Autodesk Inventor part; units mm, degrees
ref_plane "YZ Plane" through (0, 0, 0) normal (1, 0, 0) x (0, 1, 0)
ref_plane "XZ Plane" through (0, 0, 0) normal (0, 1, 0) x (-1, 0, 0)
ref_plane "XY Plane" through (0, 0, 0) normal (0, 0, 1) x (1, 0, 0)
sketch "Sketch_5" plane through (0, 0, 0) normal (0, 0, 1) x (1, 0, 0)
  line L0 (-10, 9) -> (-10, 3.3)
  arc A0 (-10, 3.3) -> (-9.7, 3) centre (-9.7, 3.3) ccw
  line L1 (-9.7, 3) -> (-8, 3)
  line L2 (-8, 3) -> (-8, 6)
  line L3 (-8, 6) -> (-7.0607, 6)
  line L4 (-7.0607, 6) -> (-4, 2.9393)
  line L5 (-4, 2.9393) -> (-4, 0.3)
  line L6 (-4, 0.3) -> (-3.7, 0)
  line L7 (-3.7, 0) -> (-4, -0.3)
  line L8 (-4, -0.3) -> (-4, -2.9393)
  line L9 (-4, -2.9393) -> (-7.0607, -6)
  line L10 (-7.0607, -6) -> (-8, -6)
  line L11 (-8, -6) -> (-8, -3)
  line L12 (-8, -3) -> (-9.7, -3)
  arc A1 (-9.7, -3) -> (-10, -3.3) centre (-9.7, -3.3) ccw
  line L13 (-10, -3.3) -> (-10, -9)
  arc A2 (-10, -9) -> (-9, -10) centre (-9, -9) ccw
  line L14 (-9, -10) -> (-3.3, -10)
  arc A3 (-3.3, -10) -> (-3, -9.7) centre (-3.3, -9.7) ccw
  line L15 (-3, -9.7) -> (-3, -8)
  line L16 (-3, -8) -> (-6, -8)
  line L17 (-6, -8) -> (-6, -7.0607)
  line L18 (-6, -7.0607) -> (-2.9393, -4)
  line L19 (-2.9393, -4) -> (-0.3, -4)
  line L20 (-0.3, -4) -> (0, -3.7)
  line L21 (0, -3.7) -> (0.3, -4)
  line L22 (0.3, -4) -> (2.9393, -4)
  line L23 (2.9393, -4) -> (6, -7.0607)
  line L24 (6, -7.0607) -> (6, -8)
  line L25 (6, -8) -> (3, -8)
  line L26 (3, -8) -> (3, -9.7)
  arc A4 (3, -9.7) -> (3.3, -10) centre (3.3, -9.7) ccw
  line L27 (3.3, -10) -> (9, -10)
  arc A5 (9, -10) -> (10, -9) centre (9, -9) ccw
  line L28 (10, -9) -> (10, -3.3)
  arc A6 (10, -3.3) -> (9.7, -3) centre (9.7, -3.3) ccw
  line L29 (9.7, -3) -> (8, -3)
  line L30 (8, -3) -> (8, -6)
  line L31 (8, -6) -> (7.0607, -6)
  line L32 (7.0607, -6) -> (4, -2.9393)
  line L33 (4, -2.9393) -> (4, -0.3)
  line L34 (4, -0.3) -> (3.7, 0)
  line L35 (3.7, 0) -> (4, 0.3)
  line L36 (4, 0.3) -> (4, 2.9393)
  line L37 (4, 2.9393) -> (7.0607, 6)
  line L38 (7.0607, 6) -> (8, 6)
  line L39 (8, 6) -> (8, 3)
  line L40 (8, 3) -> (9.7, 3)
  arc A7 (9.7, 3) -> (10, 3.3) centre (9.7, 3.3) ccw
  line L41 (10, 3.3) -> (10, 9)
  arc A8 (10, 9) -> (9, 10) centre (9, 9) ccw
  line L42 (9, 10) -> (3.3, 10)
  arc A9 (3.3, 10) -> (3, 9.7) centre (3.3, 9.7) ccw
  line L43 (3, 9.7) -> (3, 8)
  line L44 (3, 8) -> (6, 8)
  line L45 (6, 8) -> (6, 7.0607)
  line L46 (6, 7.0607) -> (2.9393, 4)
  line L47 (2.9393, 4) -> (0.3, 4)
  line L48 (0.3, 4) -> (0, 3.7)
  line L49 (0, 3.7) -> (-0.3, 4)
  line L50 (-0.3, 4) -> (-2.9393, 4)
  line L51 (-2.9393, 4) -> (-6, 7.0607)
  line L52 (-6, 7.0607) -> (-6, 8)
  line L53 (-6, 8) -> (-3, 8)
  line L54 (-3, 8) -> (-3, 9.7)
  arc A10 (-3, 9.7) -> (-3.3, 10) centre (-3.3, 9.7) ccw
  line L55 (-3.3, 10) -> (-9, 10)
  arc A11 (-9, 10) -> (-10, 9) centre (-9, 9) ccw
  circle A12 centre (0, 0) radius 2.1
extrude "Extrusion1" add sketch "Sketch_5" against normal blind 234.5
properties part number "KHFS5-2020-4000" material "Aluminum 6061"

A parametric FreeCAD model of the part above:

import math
import FreeCAD as App
import Part
import Sketcher

doc = App.newDocument("Part")
body = doc.addObject("PartDesign::Body", "Body")

sketch1 = doc.addObject("Sketcher::SketchObject", "Sketch")
body.addObject(sketch1)
sketch1.AttachmentSupport = (doc.XY_Plane, [""])
sketch1.MapMode = "FlatFace"
sketch1.addGeometry([
    Part.ArcOfCircle(Part.Circle(App.Vector(-9, 9, 0), App.Vector(0, 0, 1), 1), math.radians(90), math.radians(180)),
    Part.LineSegment(App.Vector(-10, 9, 0), App.Vector(-10, 3.3, 0)),
    Part.ArcOfCircle(Part.Circle(App.Vector(-9.7, 3.3, 0), App.Vector(0, 0, 1), 0.3), math.radians(180), math.radians(270)),
    Part.LineSegment(App.Vector(-9.7, 3, 0), App.Vector(-8, 3, 0)),
    Part.LineSegment(App.Vector(-8, 3, 0), App.Vector(-8, 6, 0)),
    Part.LineSegment(App.Vector(-8, 6, 0), App.Vector(-7.06, 6, 0)),
    Part.LineSegment(App.Vector(-7.06, 6, 0), App.Vector(-4, 2.94, 0)),
    Part.LineSegment(App.Vector(-4, 2.94, 0), App.Vector(-4, 0.3, 0)),
    Part.LineSegment(App.Vector(-4, 0.3, 0), App.Vector(-3.7, 0, 0)),
    Part.LineSegment(App.Vector(-3.7, 0, 0), App.Vector(-4, -0.3, 0)),
    Part.LineSegment(App.Vector(-4, -0.3, 0), App.Vector(-4, -2.94, 0)),
    Part.LineSegment(App.Vector(-4, -2.94, 0), App.Vector(-7.06, -6, 0)),
    Part.LineSegment(App.Vector(-7.06, -6, 0), App.Vector(-8, -6, 0)),
    Part.LineSegment(App.Vector(-8, -6, 0), App.Vector(-8, -3, 0)),
    Part.LineSegment(App.Vector(-8, -3, 0), App.Vector(-9.7, -3, 0)),
    Part.ArcOfCircle(Part.Circle(App.Vector(-9.7, -3.3, 0), App.Vector(0, 0, 1), 0.3), math.radians(90), math.radians(180)),
    Part.LineSegment(App.Vector(-10, -3.3, 0), App.Vector(-10, -9, 0)),
    Part.ArcOfCircle(Part.Circle(App.Vector(-9, -9, 0), App.Vector(0, 0, 1), 1), math.radians(180), math.radians(270)),
    Part.LineSegment(App.Vector(-9, -10, 0), App.Vector(-3.3, -10, 0)),
    Part.ArcOfCircle(Part.Circle(App.Vector(-3.3, -9.7, 0), App.Vector(0, 0, 1), 0.3), math.radians(-90), math.radians(0)),
    Part.LineSegment(App.Vector(-3, -9.7, 0), App.Vector(-3, -8, 0)),
    Part.LineSegment(App.Vector(-3, -8, 0), App.Vector(-6, -8, 0)),
    Part.LineSegment(App.Vector(-6, -8, 0), App.Vector(-6, -7.06, 0)),
    Part.LineSegment(App.Vector(-6, -7.06, 0), App.Vector(-2.94, -4, 0)),
    Part.LineSegment(App.Vector(-2.94, -4, 0), App.Vector(-0.3, -4, 0)),
    Part.LineSegment(App.Vector(-0.3, -4, 0), App.Vector(0, -3.7, 0)),
    Part.LineSegment(App.Vector(0, -3.7, 0), App.Vector(0.3, -4, 0)),
    Part.LineSegment(App.Vector(0.3, -4, 0), App.Vector(2.94, -4, 0)),
    Part.LineSegment(App.Vector(2.94, -4, 0), App.Vector(6, -7.06, 0)),
    Part.LineSegment(App.Vector(6, -7.06, 0), App.Vector(6, -8, 0)),
    Part.LineSegment(App.Vector(6, -8, 0), App.Vector(3, -8, 0)),
    Part.LineSegment(App.Vector(3, -8, 0), App.Vector(3, -9.7, 0)),
    Part.ArcOfCircle(Part.Circle(App.Vector(3.3, -9.7, 0), App.Vector(0, 0, 1), 0.3), math.radians(180), math.radians(270)),
    Part.LineSegment(App.Vector(3.3, -10, 0), App.Vector(9, -10, 0)),
    Part.ArcOfCircle(Part.Circle(App.Vector(9, -9, 0), App.Vector(0, 0, 1), 1), math.radians(-90), math.radians(0)),
    Part.LineSegment(App.Vector(10, -9, 0), App.Vector(10, -3.3, 0)),
    Part.ArcOfCircle(Part.Circle(App.Vector(9.7, -3.3, 0), App.Vector(0, 0, 1), 0.3), math.radians(0), math.radians(90)),
    Part.LineSegment(App.Vector(9.7, -3, 0), App.Vector(8, -3, 0)),
    Part.LineSegment(App.Vector(8, -3, 0), App.Vector(8, -6, 0)),
    Part.LineSegment(App.Vector(8, -6, 0), App.Vector(7.06, -6, 0)),
    Part.LineSegment(App.Vector(7.06, -6, 0), App.Vector(4, -2.94, 0)),
    Part.LineSegment(App.Vector(4, -2.94, 0), App.Vector(4, -0.3, 0)),
    Part.LineSegment(App.Vector(4, -0.3, 0), App.Vector(3.7, 0, 0)),
    Part.LineSegment(App.Vector(3.7, 0, 0), App.Vector(4, 0.3, 0)),
    Part.LineSegment(App.Vector(4, 0.3, 0), App.Vector(4, 2.94, 0)),
    Part.LineSegment(App.Vector(4, 2.94, 0), App.Vector(7.06, 6, 0)),
    Part.LineSegment(App.Vector(7.06, 6, 0), App.Vector(8, 6, 0)),
    Part.LineSegment(App.Vector(8, 6, 0), App.Vector(8, 3, 0)),
    Part.LineSegment(App.Vector(8, 3, 0), App.Vector(9.7, 3, 0)),
    Part.ArcOfCircle(Part.Circle(App.Vector(9.7, 3.3, 0), App.Vector(0, 0, 1), 0.3), math.radians(-90), math.radians(0)),
    Part.LineSegment(App.Vector(10, 3.3, 0), App.Vector(10, 9, 0)),
    Part.ArcOfCircle(Part.Circle(App.Vector(9, 9, 0), App.Vector(0, 0, 1), 1), math.radians(0), math.radians(90)),
    Part.LineSegment(App.Vector(9, 10, 0), App.Vector(3.3, 10, 0)),
    Part.ArcOfCircle(Part.Circle(App.Vector(3.3, 9.7, 0), App.Vector(0, 0, 1), 0.3), math.radians(90), math.radians(180)),
    Part.LineSegment(App.Vector(3, 9.7, 0), App.Vector(3, 8, 0)),
    Part.LineSegment(App.Vector(3, 8, 0), App.Vector(6, 8, 0)),
    Part.LineSegment(App.Vector(6, 8, 0), App.Vector(6, 7.06, 0)),
    Part.LineSegment(App.Vector(6, 7.06, 0), App.Vector(2.94, 4, 0)),
    Part.LineSegment(App.Vector(2.94, 4, 0), App.Vector(0.3, 4, 0)),
    Part.LineSegment(App.Vector(0.3, 4, 0), App.Vector(0, 3.7, 0)),
    Part.LineSegment(App.Vector(0, 3.7, 0), App.Vector(-0.3, 4, 0)),
    Part.LineSegment(App.Vector(-0.3, 4, 0), App.Vector(-2.94, 4, 0)),
    Part.LineSegment(App.Vector(-2.94, 4, 0), App.Vector(-6, 7.06, 0)),
    Part.LineSegment(App.Vector(-6, 7.06, 0), App.Vector(-6, 8, 0)),
    Part.LineSegment(App.Vector(-6, 8, 0), App.Vector(-3, 8, 0)),
    Part.LineSegment(App.Vector(-3, 8, 0), App.Vector(-3, 9.7, 0)),
    Part.ArcOfCircle(Part.Circle(App.Vector(-3.3, 9.7, 0), App.Vector(0, 0, 1), 0.3), math.radians(0), math.radians(90)),
    Part.LineSegment(App.Vector(-3.3, 10, 0), App.Vector(-9, 10, 0)),
    Part.Circle(App.Vector(0, 0, 0), App.Vector(0, 0, 1), 2.1),
], False)
sketch1.addConstraint([
    Sketcher.Constraint("Tangent", 0, 2, 1, 1),
    Sketcher.Constraint("Tangent", 1, 2, 2, 1),
    Sketcher.Constraint("Tangent", 2, 2, 3, 1),
    Sketcher.Constraint("Coincident", 3, 2, 4, 1),
    Sketcher.Constraint("Coincident", 4, 2, 5, 1),
    Sketcher.Constraint("Coincident", 5, 2, 6, 1),
    Sketcher.Constraint("Coincident", 6, 2, 7, 1),
    Sketcher.Constraint("Coincident", 7, 2, 8, 1),
    Sketcher.Constraint("Coincident", 8, 2, 9, 1),
    Sketcher.Constraint("Coincident", 9, 2, 10, 1),
    Sketcher.Constraint("Coincident", 10, 2, 11, 1),
    Sketcher.Constraint("Coincident", 11, 2, 12, 1),
    Sketcher.Constraint("Coincident", 12, 2, 13, 1),
    Sketcher.Constraint("Coincident", 13, 2, 14, 1),
    Sketcher.Constraint("Tangent", 14, 2, 15, 1),
    Sketcher.Constraint("Tangent", 15, 2, 16, 1),
    Sketcher.Constraint("Tangent", 16, 2, 17, 1),
    Sketcher.Constraint("Tangent", 17, 2, 18, 1),
    Sketcher.Constraint("Tangent", 18, 2, 19, 1),
    Sketcher.Constraint("Tangent", 19, 2, 20, 1),
    Sketcher.Constraint("Coincident", 20, 2, 21, 1),
    Sketcher.Constraint("Coincident", 21, 2, 22, 1),
    Sketcher.Constraint("Coincident", 22, 2, 23, 1),
    Sketcher.Constraint("Coincident", 23, 2, 24, 1),
    Sketcher.Constraint("Coincident", 24, 2, 25, 1),
    Sketcher.Constraint("Coincident", 25, 2, 26, 1),
    Sketcher.Constraint("Coincident", 26, 2, 27, 1),
    Sketcher.Constraint("Coincident", 27, 2, 28, 1),
    Sketcher.Constraint("Coincident", 28, 2, 29, 1),
    Sketcher.Constraint("Coincident", 29, 2, 30, 1),
    Sketcher.Constraint("Coincident", 30, 2, 31, 1),
    Sketcher.Constraint("Tangent", 31, 2, 32, 1),
    Sketcher.Constraint("Tangent", 32, 2, 33, 1),
    Sketcher.Constraint("Tangent", 33, 2, 34, 1),
    Sketcher.Constraint("Tangent", 34, 2, 35, 1),
    Sketcher.Constraint("Tangent", 35, 2, 36, 1),
    Sketcher.Constraint("Tangent", 36, 2, 37, 1),
    Sketcher.Constraint("Coincident", 37, 2, 38, 1),
    Sketcher.Constraint("Coincident", 38, 2, 39, 1),
    Sketcher.Constraint("Coincident", 39, 2, 40, 1),
    Sketcher.Constraint("Coincident", 40, 2, 41, 1),
    Sketcher.Constraint("Coincident", 41, 2, 42, 1),
    Sketcher.Constraint("Coincident", 42, 2, 43, 1),
    Sketcher.Constraint("Coincident", 43, 2, 44, 1),
    Sketcher.Constraint("Coincident", 44, 2, 45, 1),
    Sketcher.Constraint("Coincident", 45, 2, 46, 1),
    Sketcher.Constraint("Coincident", 46, 2, 47, 1),
    Sketcher.Constraint("Coincident", 47, 2, 48, 1),
    Sketcher.Constraint("Tangent", 48, 2, 49, 1),
    Sketcher.Constraint("Tangent", 49, 2, 50, 1),
    Sketcher.Constraint("Tangent", 50, 2, 51, 1),
    Sketcher.Constraint("Tangent", 51, 2, 52, 1),
    Sketcher.Constraint("Tangent", 52, 2, 53, 1),
    Sketcher.Constraint("Tangent", 53, 2, 54, 1),
    Sketcher.Constraint("Coincident", 54, 2, 55, 1),
    Sketcher.Constraint("Coincident", 55, 2, 56, 1),
    Sketcher.Constraint("Coincident", 56, 2, 57, 1),
    Sketcher.Constraint("Coincident", 57, 2, 58, 1),
    Sketcher.Constraint("Coincident", 58, 2, 59, 1),
    Sketcher.Constraint("Coincident", 59, 2, 60, 1),
    Sketcher.Constraint("Coincident", 60, 2, 61, 1),
    Sketcher.Constraint("Coincident", 61, 2, 62, 1),
    Sketcher.Constraint("Coincident", 62, 2, 63, 1),
    Sketcher.Constraint("Coincident", 63, 2, 64, 1),
    Sketcher.Constraint("Coincident", 64, 2, 65, 1),
    Sketcher.Constraint("Tangent", 65, 2, 66, 1),
    Sketcher.Constraint("Tangent", 66, 2, 67, 1),
    Sketcher.Constraint("Tangent", 67, 2, 0, 1),
    Sketcher.Constraint("Vertical", 1),
    Sketcher.Constraint("Horizontal", 3),
    Sketcher.Constraint("Vertical", 4),
    Sketcher.Constraint("Horizontal", 5),
    Sketcher.Constraint("Vertical", 7),
    Sketcher.Constraint("Vertical", 10),
    Sketcher.Constraint("Horizontal", 12),
    Sketcher.Constraint("Vertical", 13),
    Sketcher.Constraint("Horizontal", 14),
    Sketcher.Constraint("Vertical", 16),
    Sketcher.Constraint("Horizontal", 18),
    Sketcher.Constraint("Vertical", 20),
    Sketcher.Constraint("Horizontal", 21),
    Sketcher.Constraint("Vertical", 22),
    Sketcher.Constraint("Horizontal", 24),
    Sketcher.Constraint("Horizontal", 27),
    Sketcher.Constraint("Vertical", 29),
    Sketcher.Constraint("Horizontal", 30),
    Sketcher.Constraint("Vertical", 31),
    Sketcher.Constraint("Horizontal", 33),
    Sketcher.Constraint("Vertical", 35),
    Sketcher.Constraint("Horizontal", 37),
    Sketcher.Constraint("Vertical", 38),
    Sketcher.Constraint("Horizontal", 39),
    Sketcher.Constraint("Vertical", 41),
    Sketcher.Constraint("Vertical", 44),
    Sketcher.Constraint("Horizontal", 46),
    Sketcher.Constraint("Vertical", 47),
    Sketcher.Constraint("Horizontal", 48),
    Sketcher.Constraint("Vertical", 50),
    Sketcher.Constraint("Horizontal", 52),
    Sketcher.Constraint("Vertical", 54),
    Sketcher.Constraint("Horizontal", 55),
    Sketcher.Constraint("Vertical", 56),
    Sketcher.Constraint("Horizontal", 58),
    Sketcher.Constraint("Horizontal", 61),
    Sketcher.Constraint("Vertical", 63),
    Sketcher.Constraint("Horizontal", 64),
    Sketcher.Constraint("Vertical", 65),
    Sketcher.Constraint("Horizontal", 67),
    Sketcher.Constraint("Coincident", 68, 3, -1, 1),
    Sketcher.Constraint("Equal", 2, 15),
    Sketcher.Constraint("Equal", 0, 17),
    Sketcher.Constraint("Equal", 15, 19),
    Sketcher.Constraint("Equal", 19, 32),
    Sketcher.Constraint("Equal", 17, 34),
    Sketcher.Constraint("Equal", 32, 36),
    Sketcher.Constraint("Equal", 36, 49),
    Sketcher.Constraint("Equal", 34, 51),
    Sketcher.Constraint("Equal", 49, 53),
    Sketcher.Constraint("Equal", 53, 66),
    Sketcher.Constraint("Symmetric", 0, 3, 34, 3, -1, 1),
    Sketcher.Constraint("Symmetric", 15, 3, 49, 3, -1, 1),
    Sketcher.Constraint("Symmetric", 19, 3, 53, 3, -1, 1),
    Sketcher.Constraint("Symmetric", 3, 2, 37, 2, -1, 1),
    Sketcher.Constraint("Symmetric", 5, 2, 39, 2, -1, 1),
    Sketcher.Constraint("Symmetric", 6, 2, 40, 2, -1, 1),
    Sketcher.Constraint("Symmetric", 8, 2, 42, 2, -1, 1),
    Sketcher.Constraint("Symmetric", 9, 2, 43, 2, -1, 1),
    Sketcher.Constraint("Symmetric", 11, 2, 45, 2, -1, 1),
    Sketcher.Constraint("Symmetric", 21, 2, 55, 2, -1, 1),
    Sketcher.Constraint("Symmetric", 23, 2, 57, 2, -1, 1),
    Sketcher.Constraint("Symmetric", 25, 2, 59, 2, -1, 1),
    Sketcher.Constraint("Symmetric", 26, 2, 60, 2, -1, 1),
    Sketcher.Constraint("Symmetric", 28, 2, 62, 2, -1, 1),
    Sketcher.Constraint("Symmetric", 30, 2, 64, 2, -1, 1),
    Sketcher.Constraint("Symmetric", 19, 3, 32, 3, -2),
    Sketcher.Constraint("Symmetric", 15, 3, 36, 3, -2),
    Sketcher.Constraint("Symmetric", 24, 2, 26, 2, -2),
    Sketcher.Constraint("Symmetric", 22, 2, 28, 2, -2),
    Sketcher.Constraint("Symmetric", 12, 2, 38, 2, -2),
    Sketcher.Constraint("Symmetric", 10, 2, 40, 2, -2),
    Sketcher.Constraint("PointOnObject", 8, 2, -1),
    Sketcher.Constraint("PointOnObject", 25, 2, -2),
    Sketcher.Constraint("Parallel", 6, 8),
    Sketcher.Constraint("Perpendicular", 8, 9),
    Sketcher.Constraint("Parallel", 9, 11),
    Sketcher.Constraint("Parallel", 11, 23),
    Sketcher.Constraint("Parallel", 23, 25),
    Sketcher.Constraint("Perpendicular", 25, 26),
    Sketcher.Constraint("Parallel", 26, 28),
    Sketcher.Constraint("Parallel", 40, 42),
    Sketcher.Constraint("Parallel", 43, 45),
    Sketcher.Constraint("Parallel", 45, 57),
    Sketcher.Constraint("Parallel", 57, 59),
    Sketcher.Constraint("Parallel", 60, 62),
    Sketcher.Constraint("Horizontal", 21, 2, 29, 2),
    Sketcher.Constraint("Vertical", 38, 2, 46, 2),
    Sketcher.Constraint("Equal", 67, 1),
    Sketcher.Constraint("Equal", 64, 4),
    Sketcher.Constraint("Equal", 61, 7),
    Sketcher.Constraint("Equal", 48, 20),
    Sketcher.Constraint("Equal", 46, 22),
    Sketcher.Constraint("Equal", 11, 23),
    Sketcher.Constraint("Equal", 9, 25),
    Sketcher.Constraint("Radius", 0, 1.0),
    Sketcher.Constraint("Diameter", 68, 4.2),
    Sketcher.Constraint("Radius", 2, 0.3),
    Sketcher.Constraint("DistanceX", 21, 2, 21, 1, 3.0),
    Sketcher.Constraint("DistanceX", 3, 1, 3, 2, 1.7),
    Sketcher.Constraint("DistanceX", 18, 1, 18, 2, 5.7),
    Sketcher.Constraint("DistanceX", 0, 3, -1, 1, 9.0),
    Sketcher.Constraint("DistanceX", 6, 2, -1, 1, 4.0),
    Sketcher.Constraint("DistanceY", -1, 1, 7, 2, 0.3),
    Sketcher.Constraint("DistanceX", 5, 1, 5, 2, 0.9393),
])
pad1 = doc.addObject("PartDesign::Pad", "Pad")
body.addObject(pad1)
pad1.Profile = sketch1
pad1.Length = 234.5
pad1.Reversed = True

doc.recompute()
